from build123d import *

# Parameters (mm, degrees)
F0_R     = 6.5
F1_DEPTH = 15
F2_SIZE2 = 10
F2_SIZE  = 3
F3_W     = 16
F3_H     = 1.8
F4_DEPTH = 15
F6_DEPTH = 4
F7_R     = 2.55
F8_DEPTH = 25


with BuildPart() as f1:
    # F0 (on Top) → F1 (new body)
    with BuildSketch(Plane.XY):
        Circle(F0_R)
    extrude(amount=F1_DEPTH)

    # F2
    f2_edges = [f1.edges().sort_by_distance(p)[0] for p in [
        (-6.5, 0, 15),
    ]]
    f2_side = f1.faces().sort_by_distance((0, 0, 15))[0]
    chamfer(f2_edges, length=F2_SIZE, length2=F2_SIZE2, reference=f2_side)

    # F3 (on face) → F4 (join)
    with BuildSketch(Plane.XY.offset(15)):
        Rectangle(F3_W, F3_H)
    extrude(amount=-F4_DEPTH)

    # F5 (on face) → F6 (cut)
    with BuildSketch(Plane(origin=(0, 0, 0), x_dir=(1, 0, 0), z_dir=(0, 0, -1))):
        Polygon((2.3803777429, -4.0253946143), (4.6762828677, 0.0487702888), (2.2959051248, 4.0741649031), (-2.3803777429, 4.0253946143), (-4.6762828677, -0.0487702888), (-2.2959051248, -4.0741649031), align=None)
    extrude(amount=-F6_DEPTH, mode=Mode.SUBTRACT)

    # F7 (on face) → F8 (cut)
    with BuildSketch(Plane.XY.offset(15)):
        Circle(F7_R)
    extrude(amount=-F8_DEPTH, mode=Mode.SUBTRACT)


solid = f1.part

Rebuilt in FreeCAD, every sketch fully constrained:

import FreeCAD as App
import Part
import Sketcher
from FreeCAD import Vector
Q = App.Units.Quantity


def edges_at(feature, points):
    """Names of the edges that pass closest to the given points."""
    edges = feature.Shape.Edges
    near = lambda p: min(range(len(edges)), key=lambda i: edges[i].distToShape(Part.Vertex(*p))[0])
    return sorted({f"Edge{near(p) + 1}" for p in points})


def add_polygon(sketch, points):
    """Adds a closed chain of lines whose ends are joined by coincident constraints."""
    first, n = sketch.GeometryCount, len(points)
    for a, b in zip(points, points[1:] + points[:1]):
        sketch.addGeometry(Part.LineSegment(App.Vector(*a, 0), App.Vector(*b, 0)), False)
    for i in range(n):
        sketch.addConstraint(Sketcher.Constraint("Coincident", first + i, 2, first + (i + 1) % n, 1))

doc = App.newDocument("Part")
params = doc.addObject("Spreadsheet::Sheet", "Params")
for row, (alias, value) in enumerate([
    ("sketch1_diameter", "13 mm"),
    ("pad1_length", "15 mm"),
    ("chamfer_size", "3 mm"),
    ("chamfer_size2", "10 mm"),
    ("sketch2_width", "16 mm"),
    ("sketch2_height", "1.8 mm"),
    ("pad2_length", "15 mm"),
    ("pocket1_length", "4 mm"),
    ("sketch4_diameter", "5.1 mm"),
    ("pocket2_length", "25 mm"),
], start=1):
    params.set(f"A{row}", alias)
    params.set(f"B{row}", "=" + value)
    params.setAlias(f"B{row}", alias)

body = doc.addObject("PartDesign::Body", "Body")

sketch1 = body.newObject("Sketcher::SketchObject", "Sketch")
sketch1.AttachmentSupport = (doc.getObject("XY_Plane"), [""])
sketch1.MapMode = "FlatFace"
sketch1.addGeometry(Part.Circle(Vector(0, 0, 0), Vector(0, 0, 1), 6.5), False)
sketch1.addConstraint(Sketcher.Constraint("Coincident", 0, 3, -1, 1))
sketch1.addConstraint(Sketcher.Constraint("Diameter", 0, Q("13 mm")))
sketch1.setExpression("Constraints[1]", "Params.sketch1_diameter")
pad1 = body.newObject("PartDesign::Pad", "Pad")
pad1.Profile = sketch1
pad1.setExpression("Length", "Params.pad1_length")
doc.recompute()

chamfer = body.newObject("PartDesign::Chamfer", "Chamfer")
chamfer.Base = (pad1, edges_at(pad1, [(-6.5, 0, 15)]))
chamfer.ChamferType = "Two distances"
chamfer.setExpression("Size", "Params.chamfer_size")
chamfer.setExpression("Size2", "Params.chamfer_size2")
chamfer.FlipDirection = True

sketch2 = body.newObject("Sketcher::SketchObject", "Sketch001")
sketch2.AttachmentSupport = (doc.getObject("XY_Plane"), [""])
sketch2.MapMode = "FlatFace"
sketch2.AttachmentOffset = App.Placement(Vector(0, 0, 15), App.Rotation())
add_polygon(sketch2, [(-8, 0.9), (-8, -0.9), (8, -0.9), (8, 0.9)])
sketch2.addConstraint(Sketcher.Constraint("Vertical", 0))
sketch2.addConstraint(Sketcher.Constraint("Horizontal", 1))
sketch2.addConstraint(Sketcher.Constraint("Vertical", 2))
sketch2.addConstraint(Sketcher.Constraint("Horizontal", 3))
sketch2.addConstraint(Sketcher.Constraint("Symmetric", 0, 2, 2, 2, -1, 1))
sketch2.addConstraint(Sketcher.Constraint("DistanceX", 1, 1, 1, 2, Q("16 mm")))
sketch2.addConstraint(Sketcher.Constraint("DistanceY", 0, 2, 0, 1, Q("1.8 mm")))
sketch2.setExpression("Constraints[9]", "Params.sketch2_width")
sketch2.setExpression("Constraints[10]", "Params.sketch2_height")
pad2 = body.newObject("PartDesign::Pad", "Pad001")
pad2.Profile = sketch2
pad2.setExpression("Length", "Params.pad2_length")
pad2.Reversed = True

sketch3 = body.newObject("Sketcher::SketchObject", "Sketch002")
sketch3.AttachmentSupport = (doc.getObject("XY_Plane"), [""])
sketch3.MapMode = "FlatFace"
add_polygon(sketch3, [(2.380378, 4.025395), (4.676283, -0.04877), (2.295905, -4.074165), (-2.380378, -4.025395), (-4.676283, 0.04877), (-2.295905, 4.074165)])
sketch3.addConstraint(Sketcher.Constraint("Symmetric", 0, 2, 3, 2, -1, 1))
sketch3.addConstraint(Sketcher.Constraint("Symmetric", 1, 2, 4, 2, -1, 1))
sketch3.addConstraint(Sketcher.Constraint("Symmetric", 2, 2, 5, 2, -1, 1))
sketch3.addConstraint(Sketcher.Constraint("Equal", 0, 1))
sketch3.addConstraint(Sketcher.Constraint("Equal", 1, 2))
sketch3.addConstraint(Sketcher.Constraint("DistanceY", 0, 2, -1, 1, Q("0.04877 mm")))
sketch3.addConstraint(Sketcher.Constraint("DistanceY", 1, 2, 2, 2, Q("0.04877 mm")))
sketch3.addConstraint(Sketcher.Constraint("DistanceX", 2, 2, 0, 2, Q("7.056661 mm")))
sketch3.addConstraint(Sketcher.Constraint("DistanceY", 2, 2, 4, 2, Q("8.09956 mm")))
pocket1 = body.newObject("PartDesign::Pocket", "Pocket")
pocket1.Profile = sketch3
pocket1.setExpression("Length", "Params.pocket1_length")
pocket1.Reversed = True

sketch4 = body.newObject("Sketcher::SketchObject", "Sketch003")
sketch4.AttachmentSupport = (doc.getObject("XY_Plane"), [""])
sketch4.MapMode = "FlatFace"
sketch4.AttachmentOffset = App.Placement(Vector(0, 0, 15), App.Rotation())
sketch4.addGeometry(Part.Circle(Vector(0, 0, 0), Vector(0, 0, 1), 2.55), False)
sketch4.addConstraint(Sketcher.Constraint("Coincident", 0, 3, -1, 1))
sketch4.addConstraint(Sketcher.Constraint("Diameter", 0, Q("5.1 mm")))
sketch4.setExpression("Constraints[1]", "Params.sketch4_diameter")
pocket2 = body.newObject("PartDesign::Pocket", "Pocket001")
pocket2.Profile = sketch4
pocket2.setExpression("Length", "Params.pocket2_length")

doc.recompute()
